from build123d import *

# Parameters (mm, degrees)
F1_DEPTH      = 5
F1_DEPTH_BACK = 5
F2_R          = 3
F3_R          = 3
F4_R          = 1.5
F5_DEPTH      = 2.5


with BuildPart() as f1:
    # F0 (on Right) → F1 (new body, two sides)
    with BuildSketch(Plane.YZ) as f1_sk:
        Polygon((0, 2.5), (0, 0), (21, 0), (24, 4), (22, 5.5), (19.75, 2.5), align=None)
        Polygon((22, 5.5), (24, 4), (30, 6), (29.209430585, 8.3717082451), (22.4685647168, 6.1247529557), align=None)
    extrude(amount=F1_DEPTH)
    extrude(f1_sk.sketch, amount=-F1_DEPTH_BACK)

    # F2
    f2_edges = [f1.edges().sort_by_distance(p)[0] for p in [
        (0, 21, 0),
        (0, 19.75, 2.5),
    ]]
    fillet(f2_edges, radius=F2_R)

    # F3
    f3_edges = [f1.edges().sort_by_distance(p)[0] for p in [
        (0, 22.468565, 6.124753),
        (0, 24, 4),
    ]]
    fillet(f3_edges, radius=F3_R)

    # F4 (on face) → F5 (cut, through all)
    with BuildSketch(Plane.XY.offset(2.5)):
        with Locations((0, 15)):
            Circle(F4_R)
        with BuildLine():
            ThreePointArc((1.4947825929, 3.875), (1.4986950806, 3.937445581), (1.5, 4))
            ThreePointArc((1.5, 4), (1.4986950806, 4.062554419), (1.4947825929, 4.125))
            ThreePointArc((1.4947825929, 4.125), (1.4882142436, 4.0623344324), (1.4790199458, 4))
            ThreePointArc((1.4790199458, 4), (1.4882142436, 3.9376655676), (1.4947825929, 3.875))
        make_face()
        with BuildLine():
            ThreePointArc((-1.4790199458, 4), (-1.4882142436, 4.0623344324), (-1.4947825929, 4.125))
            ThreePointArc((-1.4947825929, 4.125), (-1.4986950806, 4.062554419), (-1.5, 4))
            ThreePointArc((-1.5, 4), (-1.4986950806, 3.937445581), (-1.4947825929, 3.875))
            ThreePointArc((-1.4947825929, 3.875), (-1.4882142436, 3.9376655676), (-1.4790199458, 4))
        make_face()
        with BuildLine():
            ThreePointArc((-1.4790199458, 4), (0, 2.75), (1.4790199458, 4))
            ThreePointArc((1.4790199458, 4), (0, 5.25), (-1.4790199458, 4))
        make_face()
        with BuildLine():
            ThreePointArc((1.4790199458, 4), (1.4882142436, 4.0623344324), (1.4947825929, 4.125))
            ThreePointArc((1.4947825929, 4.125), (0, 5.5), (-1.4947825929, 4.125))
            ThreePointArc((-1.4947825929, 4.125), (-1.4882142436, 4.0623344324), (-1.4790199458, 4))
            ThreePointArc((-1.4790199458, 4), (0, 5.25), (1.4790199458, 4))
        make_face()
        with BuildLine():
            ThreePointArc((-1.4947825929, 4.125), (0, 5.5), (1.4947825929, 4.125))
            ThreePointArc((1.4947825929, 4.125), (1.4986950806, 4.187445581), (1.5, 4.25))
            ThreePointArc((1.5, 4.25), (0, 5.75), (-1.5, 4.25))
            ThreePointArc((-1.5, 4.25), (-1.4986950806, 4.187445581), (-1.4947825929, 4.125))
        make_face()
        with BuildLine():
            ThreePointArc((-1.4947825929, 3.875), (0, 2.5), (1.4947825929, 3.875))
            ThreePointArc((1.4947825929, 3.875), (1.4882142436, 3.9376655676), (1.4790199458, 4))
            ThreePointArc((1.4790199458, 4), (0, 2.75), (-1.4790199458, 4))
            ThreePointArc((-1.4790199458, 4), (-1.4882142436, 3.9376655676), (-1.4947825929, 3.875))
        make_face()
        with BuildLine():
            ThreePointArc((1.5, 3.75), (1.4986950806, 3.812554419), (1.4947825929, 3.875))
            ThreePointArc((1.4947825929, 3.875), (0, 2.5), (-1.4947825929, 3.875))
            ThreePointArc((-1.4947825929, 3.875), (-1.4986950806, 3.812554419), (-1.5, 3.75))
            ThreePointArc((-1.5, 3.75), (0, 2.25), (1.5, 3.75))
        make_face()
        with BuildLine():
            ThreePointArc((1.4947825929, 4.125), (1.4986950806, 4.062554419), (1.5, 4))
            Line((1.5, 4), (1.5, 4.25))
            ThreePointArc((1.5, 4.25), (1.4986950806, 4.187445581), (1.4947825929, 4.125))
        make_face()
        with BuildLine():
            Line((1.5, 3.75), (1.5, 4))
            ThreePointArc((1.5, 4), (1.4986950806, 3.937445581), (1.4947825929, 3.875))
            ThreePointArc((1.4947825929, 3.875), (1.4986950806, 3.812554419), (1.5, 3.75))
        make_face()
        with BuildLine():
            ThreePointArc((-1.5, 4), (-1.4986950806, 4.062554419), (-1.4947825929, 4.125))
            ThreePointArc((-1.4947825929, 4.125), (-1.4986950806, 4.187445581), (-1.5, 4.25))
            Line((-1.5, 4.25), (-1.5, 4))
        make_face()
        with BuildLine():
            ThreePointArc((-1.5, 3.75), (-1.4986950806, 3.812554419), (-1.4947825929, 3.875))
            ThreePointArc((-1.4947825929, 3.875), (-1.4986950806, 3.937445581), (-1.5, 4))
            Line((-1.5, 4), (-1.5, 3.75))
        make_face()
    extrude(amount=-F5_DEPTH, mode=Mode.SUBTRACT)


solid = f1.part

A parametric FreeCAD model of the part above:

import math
import FreeCAD as App
import Part
import Sketcher
Q = App.Units.Quantity


def edges_at(feature, points):
    """Names of the edges that pass closest to the given points."""
    edges = feature.Shape.Edges
    near = lambda p: min(range(len(edges)), key=lambda i: edges[i].distToShape(Part.Vertex(*p))[0])
    return sorted({f"Edge{near(p) + 1}" for p in points})

doc = App.newDocument("Part")
params = doc.addObject("Spreadsheet::Sheet", "Params")
for row, (alias, value) in enumerate([
    ("sketch1_width", "21 mm"),
    ("sketch1_length", "5 mm"),
    ("sketch1_height", "2.5 mm"),
    ("sketch1_length2", "2.5 mm"),
    ("pad1_length", "5 mm"),
    ("pad1_length2", "5 mm"),
    ("fillet_radius", "3 mm"),
    ("fillet2_radius", "3 mm"),
    ("sketch2_diameter", "3 mm"),
    ("sketch2_height", "0.5 mm"),
], start=1):
    params.set(f"A{row}", alias)
    params.set(f"B{row}", "=" + value)
    params.setAlias(f"B{row}", alias)

body = doc.addObject("PartDesign::Body", "Body")

# Sketch on YZ plane
sketch1 = body.newObject("Sketcher::SketchObject", "Sketch")
sketch1.AttachmentSupport = (doc.getObject("YZ_Plane"), [""])
sketch1.MapMode = "FlatFace"
sketch1.addGeometry(Part.LineSegment(App.Vector(0, 2.5, 0), App.Vector(0, 0, 0)), False)
sketch1.addGeometry(Part.LineSegment(App.Vector(0, 0, 0), App.Vector(21, 0, 0)), False)
sketch1.addGeometry(Part.LineSegment(App.Vector(21, 0, 0), App.Vector(24, 4, 0)), False)
sketch1.addGeometry(Part.LineSegment(App.Vector(24, 4, 0), App.Vector(30, 6, 0)), False)
sketch1.addGeometry(Part.LineSegment(App.Vector(30, 6, 0), App.Vector(29.2, 8.4, 0)), False)
sketch1.addGeometry(Part.LineSegment(App.Vector(29.2, 8.4, 0), App.Vector(22.5, 6.1, 0)), False)
sketch1.addGeometry(Part.LineSegment(App.Vector(22.5, 6.1, 0), App.Vector(22, 5.5, 0)), False)
sketch1.addGeometry(Part.LineSegment(App.Vector(22, 5.5, 0), App.Vector(19.8, 2.5, 0)), False)
sketch1.addGeometry(Part.LineSegment(App.Vector(19.8, 2.5, 0), App.Vector(0, 2.5, 0)), False)
sketch1.addConstraint(Sketcher.Constraint("Coincident", 0, 2, 1, 1))
sketch1.addConstraint(Sketcher.Constraint("Coincident", 1, 2, 2, 1))
sketch1.addConstraint(Sketcher.Constraint("Coincident", 2, 2, 3, 1))
sketch1.addConstraint(Sketcher.Constraint("Coincident", 3, 2, 4, 1))
sketch1.addConstraint(Sketcher.Constraint("Coincident", 4, 2, 5, 1))
sketch1.addConstraint(Sketcher.Constraint("Coincident", 5, 2, 6, 1))
sketch1.addConstraint(Sketcher.Constraint("Coincident", 6, 2, 7, 1))
sketch1.addConstraint(Sketcher.Constraint("Coincident", 7, 2, 8, 1))
sketch1.addConstraint(Sketcher.Constraint("Coincident", 8, 2, 0, 1))
sketch1.addConstraint(Sketcher.Constraint("Vertical", 0))
sketch1.addConstraint(Sketcher.Constraint("Horizontal", 1))
sketch1.addConstraint(Sketcher.Constraint("Horizontal", 8))
sketch1.addConstraint(Sketcher.Constraint("Coincident", 0, 2, -1, 1))
sketch1.addConstraint(Sketcher.Constraint("Perpendicular", 3, 4))
sketch1.addConstraint(Sketcher.Constraint("Perpendicular", 4, 5))
sketch1.addConstraint(Sketcher.Constraint("Parallel", 2, 6))
sketch1.addConstraint(Sketcher.Constraint("Parallel", 6, 7))
sketch1.addConstraint(Sketcher.Constraint("DistanceX", 1, 1, 1, 2, Q("21 mm")))
sketch1.addConstraint(Sketcher.Constraint("Distance", 2, Q("5 mm")))
sketch1.addConstraint(Sketcher.Constraint("DistanceY", 0, 2, 0, 1, Q("2.5 mm")))
sketch1.addConstraint(Sketcher.Constraint("DistanceX", -1, 1, 2, 2, Q("24 mm")))
sketch1.addConstraint(Sketcher.Constraint("DistanceX", -1, 1, 3, 2, Q("30 mm")))
sketch1.addConstraint(Sketcher.Constraint("DistanceY", -1, 1, 3, 2, Q("6 mm")))
sketch1.addConstraint(Sketcher.Constraint("DistanceX", -1, 1, 6, 2, Q("22 mm")))
sketch1.addConstraint(Sketcher.Constraint("DistanceY", 7, 2, 6, 2, Q("3 mm")))
sketch1.addConstraint(Sketcher.Constraint("Distance", 4, Q("2.5 mm")))
sketch1.setExpression("Constraints[17]", "Params.sketch1_width")
sketch1.setExpression("Constraints[18]", "Params.sketch1_length")
sketch1.setExpression("Constraints[19]", "Params.sketch1_height")
sketch1.setExpression("Constraints[25]", "Params.sketch1_length2")
pad1 = body.newObject("PartDesign::Pad", "Pad")
pad1.Profile = sketch1
pad1.Type = "TwoLengths"
pad1.setExpression("Length", "Params.pad1_length")
pad1.setExpression("Length2", "Params.pad1_length2")
doc.recompute()

fillet = body.newObject("PartDesign::Fillet", "Fillet")
fillet.Base = (pad1, edges_at(pad1, [(0, 21, 0), (0, 19.75, 2.5)]))
fillet.setExpression("Radius", "Params.fillet_radius")
doc.recompute()

fillet2 = body.newObject("PartDesign::Fillet", "Fillet001")
fillet2.Base = (fillet, edges_at(fillet, [(0, 22.469, 6.125), (0, 24, 4)]))
fillet2.setExpression("Radius", "Params.fillet2_radius")

# Sketch on XY plane
sketch2 = body.newObject("Sketcher::SketchObject", "Sketch001")
sketch2.AttachmentSupport = (doc.getObject("XY_Plane"), [""])
sketch2.MapMode = "FlatFace"
sketch2.AttachmentOffset = App.Placement(App.Vector(0, 0, 2.5), App.Rotation())
sketch2.addGeometry(Part.Circle(App.Vector(0, 15, 0), App.Vector(0, 0, 1), 1.5), False)
sketch2.addGeometry(Part.ArcOfCircle(Part.Circle(App.Vector(0, 4.2, 0), App.Vector(0, 0, 1), 1.5), math.radians(0), math.radians(180)), False)
sketch2.addGeometry(Part.LineSegment(App.Vector(-1.5, 4.2, 0), App.Vector(-1.5, 3.8, 0)), False)
sketch2.addGeometry(Part.ArcOfCircle(Part.Circle(App.Vector(0, 3.8, 0), App.Vector(0, 0, 1), 1.5), math.radians(180), math.radians(360)), False)
sketch2.addGeometry(Part.LineSegment(App.Vector(1.5, 3.8, 0), App.Vector(1.5, 4.2, 0)), False)
sketch2.addConstraint(Sketcher.Constraint("Tangent", 1, 2, 2, 1))
sketch2.addConstraint(Sketcher.Constraint("Tangent", 2, 2, 3, 1))
sketch2.addConstraint(Sketcher.Constraint("Tangent", 3, 2, 4, 1))
sketch2.addConstraint(Sketcher.Constraint("Tangent", 4, 2, 1, 1))
sketch2.addConstraint(Sketcher.Constraint("Vertical", 2))
sketch2.addConstraint(Sketcher.Constraint("Vertical", 4))
sketch2.addConstraint(Sketcher.Constraint("Equal", 0, 1))
sketch2.addConstraint(Sketcher.Constraint("PointOnObject", 0, 3, -2))
sketch2.addConstraint(Sketcher.Constraint("PointOnObject", 1, 3, -2))
sketch2.addConstraint(Sketcher.Constraint("Diameter", 0, Q("3 mm")))
sketch2.addConstraint(Sketcher.Constraint("DistanceY", 2, 2, 2, 1, Q("0.5 mm")))
sketch2.addConstraint(Sketcher.Constraint("DistanceY", -1, 1, 0, 3, Q("15 mm")))
sketch2.addConstraint(Sketcher.Constraint("DistanceY", -1, 1, 1, 3, Q("4.25 mm")))
sketch2.setExpression("Constraints[9]", "Params.sketch2_diameter")
sketch2.setExpression("Constraints[10]", "Params.sketch2_height")
pocket1 = body.newObject("PartDesign::Pocket", "Pocket")
pocket1.Profile = sketch2
pocket1.Type = "ThroughAll"

doc.recompute()
